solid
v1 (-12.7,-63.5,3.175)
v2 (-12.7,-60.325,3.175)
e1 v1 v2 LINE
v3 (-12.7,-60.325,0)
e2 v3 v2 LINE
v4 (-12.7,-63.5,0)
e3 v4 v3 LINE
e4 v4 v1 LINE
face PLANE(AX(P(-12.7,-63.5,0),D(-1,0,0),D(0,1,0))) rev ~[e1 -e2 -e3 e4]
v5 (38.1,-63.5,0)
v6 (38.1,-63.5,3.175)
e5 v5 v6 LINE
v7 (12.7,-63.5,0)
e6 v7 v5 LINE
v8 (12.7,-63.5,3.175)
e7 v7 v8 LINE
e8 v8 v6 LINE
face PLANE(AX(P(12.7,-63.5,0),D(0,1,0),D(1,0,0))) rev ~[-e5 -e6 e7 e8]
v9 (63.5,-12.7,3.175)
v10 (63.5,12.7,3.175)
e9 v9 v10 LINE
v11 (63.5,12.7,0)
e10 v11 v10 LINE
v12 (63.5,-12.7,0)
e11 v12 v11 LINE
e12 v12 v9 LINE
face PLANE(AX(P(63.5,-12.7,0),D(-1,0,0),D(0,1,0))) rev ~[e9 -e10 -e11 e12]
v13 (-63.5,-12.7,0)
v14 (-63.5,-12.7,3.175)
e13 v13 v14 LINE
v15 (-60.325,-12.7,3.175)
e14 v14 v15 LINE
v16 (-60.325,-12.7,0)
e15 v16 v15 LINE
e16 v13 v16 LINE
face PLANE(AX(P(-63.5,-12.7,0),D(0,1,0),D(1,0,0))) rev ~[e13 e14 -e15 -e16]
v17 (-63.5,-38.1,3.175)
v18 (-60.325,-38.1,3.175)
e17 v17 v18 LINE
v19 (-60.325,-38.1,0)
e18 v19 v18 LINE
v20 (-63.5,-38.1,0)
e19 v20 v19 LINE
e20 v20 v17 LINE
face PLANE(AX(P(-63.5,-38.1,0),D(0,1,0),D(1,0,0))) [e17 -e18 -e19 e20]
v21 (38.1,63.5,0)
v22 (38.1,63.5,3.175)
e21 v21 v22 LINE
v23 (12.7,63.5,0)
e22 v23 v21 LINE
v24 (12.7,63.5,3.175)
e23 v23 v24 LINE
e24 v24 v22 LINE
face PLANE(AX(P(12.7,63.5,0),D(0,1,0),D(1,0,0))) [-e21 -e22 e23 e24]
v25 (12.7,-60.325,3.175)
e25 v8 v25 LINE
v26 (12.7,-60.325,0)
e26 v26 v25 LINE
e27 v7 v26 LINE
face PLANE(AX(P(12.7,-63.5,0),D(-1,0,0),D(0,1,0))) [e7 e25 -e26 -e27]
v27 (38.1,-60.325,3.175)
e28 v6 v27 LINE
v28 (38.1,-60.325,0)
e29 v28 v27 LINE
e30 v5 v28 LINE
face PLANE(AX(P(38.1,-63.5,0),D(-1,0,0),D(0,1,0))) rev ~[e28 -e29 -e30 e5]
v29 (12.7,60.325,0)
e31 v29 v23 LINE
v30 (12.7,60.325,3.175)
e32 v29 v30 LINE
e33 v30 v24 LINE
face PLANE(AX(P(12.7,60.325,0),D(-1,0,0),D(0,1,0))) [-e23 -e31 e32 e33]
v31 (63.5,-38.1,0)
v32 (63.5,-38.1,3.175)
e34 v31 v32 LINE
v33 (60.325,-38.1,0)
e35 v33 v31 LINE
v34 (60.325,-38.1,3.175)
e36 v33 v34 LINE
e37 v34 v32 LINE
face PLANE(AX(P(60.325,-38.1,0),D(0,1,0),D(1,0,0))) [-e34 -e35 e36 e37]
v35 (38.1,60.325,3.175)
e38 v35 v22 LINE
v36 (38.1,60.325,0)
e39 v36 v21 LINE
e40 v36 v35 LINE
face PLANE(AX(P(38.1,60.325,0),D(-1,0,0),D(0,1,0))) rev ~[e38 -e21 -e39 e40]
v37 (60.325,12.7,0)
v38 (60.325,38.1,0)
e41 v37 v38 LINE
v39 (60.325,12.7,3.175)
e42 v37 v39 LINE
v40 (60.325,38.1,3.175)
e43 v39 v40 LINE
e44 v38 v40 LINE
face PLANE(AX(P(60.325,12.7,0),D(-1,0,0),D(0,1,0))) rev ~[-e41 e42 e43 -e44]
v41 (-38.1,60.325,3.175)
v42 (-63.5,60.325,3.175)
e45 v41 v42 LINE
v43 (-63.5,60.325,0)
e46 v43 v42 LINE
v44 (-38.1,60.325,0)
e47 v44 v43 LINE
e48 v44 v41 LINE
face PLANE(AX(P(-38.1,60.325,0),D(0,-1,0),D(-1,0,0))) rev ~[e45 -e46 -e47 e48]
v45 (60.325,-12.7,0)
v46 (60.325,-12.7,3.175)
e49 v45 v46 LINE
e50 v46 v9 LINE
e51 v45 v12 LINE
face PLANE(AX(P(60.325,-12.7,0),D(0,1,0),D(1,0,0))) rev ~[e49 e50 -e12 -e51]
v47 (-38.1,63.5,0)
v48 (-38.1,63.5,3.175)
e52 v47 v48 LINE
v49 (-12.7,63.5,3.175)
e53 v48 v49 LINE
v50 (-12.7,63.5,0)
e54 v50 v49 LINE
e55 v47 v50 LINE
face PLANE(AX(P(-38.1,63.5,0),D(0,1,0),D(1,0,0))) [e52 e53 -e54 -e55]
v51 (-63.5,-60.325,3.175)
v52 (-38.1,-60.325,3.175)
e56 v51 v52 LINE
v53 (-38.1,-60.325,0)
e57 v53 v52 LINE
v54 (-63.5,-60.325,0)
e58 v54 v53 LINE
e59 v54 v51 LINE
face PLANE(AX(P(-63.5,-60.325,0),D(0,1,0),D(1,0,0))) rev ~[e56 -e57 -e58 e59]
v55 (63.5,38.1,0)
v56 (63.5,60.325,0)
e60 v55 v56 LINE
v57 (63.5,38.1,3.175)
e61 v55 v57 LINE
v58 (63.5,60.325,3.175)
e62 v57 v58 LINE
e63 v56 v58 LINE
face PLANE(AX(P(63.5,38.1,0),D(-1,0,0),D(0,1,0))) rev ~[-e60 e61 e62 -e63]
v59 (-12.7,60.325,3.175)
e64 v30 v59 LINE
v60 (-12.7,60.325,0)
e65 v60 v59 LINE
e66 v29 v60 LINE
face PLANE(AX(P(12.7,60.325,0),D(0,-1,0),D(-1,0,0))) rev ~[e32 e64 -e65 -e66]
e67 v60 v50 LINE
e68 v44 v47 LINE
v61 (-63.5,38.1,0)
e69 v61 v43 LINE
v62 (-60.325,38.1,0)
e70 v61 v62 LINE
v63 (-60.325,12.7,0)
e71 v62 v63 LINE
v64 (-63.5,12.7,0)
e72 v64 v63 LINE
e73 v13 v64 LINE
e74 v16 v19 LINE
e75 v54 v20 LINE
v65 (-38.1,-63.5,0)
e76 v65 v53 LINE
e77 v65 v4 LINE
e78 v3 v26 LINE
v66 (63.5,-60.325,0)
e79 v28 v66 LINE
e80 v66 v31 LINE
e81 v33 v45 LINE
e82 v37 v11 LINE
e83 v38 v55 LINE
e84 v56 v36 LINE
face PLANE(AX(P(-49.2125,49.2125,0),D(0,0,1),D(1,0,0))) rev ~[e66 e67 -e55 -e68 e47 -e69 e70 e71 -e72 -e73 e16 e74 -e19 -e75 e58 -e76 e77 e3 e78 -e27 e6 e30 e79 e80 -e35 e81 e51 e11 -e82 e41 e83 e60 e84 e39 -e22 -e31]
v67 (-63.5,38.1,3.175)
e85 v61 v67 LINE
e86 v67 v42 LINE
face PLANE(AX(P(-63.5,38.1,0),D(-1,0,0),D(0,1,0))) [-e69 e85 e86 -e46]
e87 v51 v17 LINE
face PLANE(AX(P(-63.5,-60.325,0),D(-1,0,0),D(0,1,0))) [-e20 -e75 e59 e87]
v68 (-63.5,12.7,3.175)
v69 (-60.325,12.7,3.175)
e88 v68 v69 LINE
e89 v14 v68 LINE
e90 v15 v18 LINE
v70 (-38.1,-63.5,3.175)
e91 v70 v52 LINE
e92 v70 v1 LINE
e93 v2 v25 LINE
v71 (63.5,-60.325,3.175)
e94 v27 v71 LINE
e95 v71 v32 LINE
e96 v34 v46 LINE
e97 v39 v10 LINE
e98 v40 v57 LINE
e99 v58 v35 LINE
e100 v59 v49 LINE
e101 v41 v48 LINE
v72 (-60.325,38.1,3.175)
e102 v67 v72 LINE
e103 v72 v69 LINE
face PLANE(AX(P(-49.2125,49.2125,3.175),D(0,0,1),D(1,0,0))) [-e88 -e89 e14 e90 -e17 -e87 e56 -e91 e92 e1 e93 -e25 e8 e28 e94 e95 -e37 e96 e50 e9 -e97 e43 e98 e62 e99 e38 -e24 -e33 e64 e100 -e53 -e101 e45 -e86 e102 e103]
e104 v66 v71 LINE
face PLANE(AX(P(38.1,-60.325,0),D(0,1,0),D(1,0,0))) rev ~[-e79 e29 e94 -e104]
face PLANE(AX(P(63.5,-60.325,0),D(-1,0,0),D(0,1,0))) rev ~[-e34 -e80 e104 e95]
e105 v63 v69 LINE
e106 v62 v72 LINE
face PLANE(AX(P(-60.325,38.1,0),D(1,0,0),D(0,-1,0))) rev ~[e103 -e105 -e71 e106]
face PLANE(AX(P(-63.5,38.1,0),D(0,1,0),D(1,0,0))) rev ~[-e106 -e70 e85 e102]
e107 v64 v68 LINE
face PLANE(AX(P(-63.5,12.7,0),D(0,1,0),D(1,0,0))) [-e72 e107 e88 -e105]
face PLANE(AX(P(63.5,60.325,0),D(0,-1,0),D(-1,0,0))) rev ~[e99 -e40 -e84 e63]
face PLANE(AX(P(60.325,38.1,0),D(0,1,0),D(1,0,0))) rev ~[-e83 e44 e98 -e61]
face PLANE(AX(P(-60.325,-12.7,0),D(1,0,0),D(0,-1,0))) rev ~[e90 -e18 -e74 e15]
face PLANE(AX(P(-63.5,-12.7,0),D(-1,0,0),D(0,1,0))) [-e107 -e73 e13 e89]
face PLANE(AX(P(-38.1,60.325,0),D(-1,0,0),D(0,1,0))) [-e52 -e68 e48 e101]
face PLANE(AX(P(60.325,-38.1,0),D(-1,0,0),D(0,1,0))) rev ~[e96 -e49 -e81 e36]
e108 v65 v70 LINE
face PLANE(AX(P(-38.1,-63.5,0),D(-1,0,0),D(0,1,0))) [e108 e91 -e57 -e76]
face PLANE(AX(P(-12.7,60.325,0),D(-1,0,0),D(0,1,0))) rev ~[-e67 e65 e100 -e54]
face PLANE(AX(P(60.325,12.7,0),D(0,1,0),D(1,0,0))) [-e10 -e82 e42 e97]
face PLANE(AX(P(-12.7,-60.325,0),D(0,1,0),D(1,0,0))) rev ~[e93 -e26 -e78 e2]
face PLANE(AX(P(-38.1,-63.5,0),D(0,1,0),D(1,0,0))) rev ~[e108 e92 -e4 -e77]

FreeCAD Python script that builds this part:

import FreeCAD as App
import Part
import Sketcher
Q = App.Units.Quantity


def add_polygon(sketch, points):
    """Adds a closed chain of lines whose ends are joined by coincident constraints."""
    first, n = sketch.GeometryCount, len(points)
    for a, b in zip(points, points[1:] + points[:1]):
        sketch.addGeometry(Part.LineSegment(App.Vector(*a, 0), App.Vector(*b, 0)), False)
    for i in range(n):
        sketch.addConstraint(Sketcher.Constraint("Coincident", first + i, 2, first + (i + 1) % n, 1))

doc = App.newDocument("Part")
body = doc.addObject("PartDesign::Body", "Body")

# Sketch on XY plane
sketch1 = body.newObject("Sketcher::SketchObject", "Sketch")
sketch1.AttachmentSupport = (doc.getObject("XY_Plane"), [""])
sketch1.MapMode = "FlatFace"
add_polygon(sketch1, [(-60.3, 38.1), (-60.3, 12.7), (-63.5, 12.7), (-63.5, -12.7), (-60.3, -12.7), (-60.3, -38.1), (-63.5, -38.1), (-63.5, -60.3), (-38.1, -60.3), (-38.1, -63.5), (-12.7, -63.5), (-12.7, -60.3), (12.7, -60.3), (12.7, -63.5), (38.1, -63.5), (38.1, -60.3), (63.5, -60.3), (63.5, -38.1), (60.3, -38.1), (60.3, -12.7), (63.5, -12.7), (63.5, 12.7), (60.3, 12.7), (60.3, 38.1), (63.5, 38.1), (63.5, 60.3), (38.1, 60.3), (38.1, 63.5), (12.7, 63.5), (12.7, 60.3), (-12.7, 60.3), (-12.7, 63.5), (-38.1, 63.5), (-38.1, 60.3), (-63.5, 60.3), (-63.5, 38.1)])  # lines 0-35
sketch1.addConstraint([
    Sketcher.Constraint("Vertical", 0),
    Sketcher.Constraint("Horizontal", 1),
    Sketcher.Constraint("Vertical", 2),
    Sketcher.Constraint("Horizontal", 3),
    Sketcher.Constraint("Vertical", 4),
    Sketcher.Constraint("Horizontal", 5),
    Sketcher.Constraint("Vertical", 6),
    Sketcher.Constraint("Horizontal", 7),
    Sketcher.Constraint("Vertical", 8),
    Sketcher.Constraint("Horizontal", 9),
    Sketcher.Constraint("Vertical", 10),
    Sketcher.Constraint("Horizontal", 11),
    Sketcher.Constraint("Vertical", 12),
    Sketcher.Constraint("Horizontal", 13),
    Sketcher.Constraint("Vertical", 14),
    Sketcher.Constraint("Horizontal", 15),
    Sketcher.Constraint("Vertical", 16),
    Sketcher.Constraint("Horizontal", 17),
    Sketcher.Constraint("Vertical", 18),
    Sketcher.Constraint("Horizontal", 19),
    Sketcher.Constraint("Vertical", 20),
    Sketcher.Constraint("Horizontal", 21),
    Sketcher.Constraint("Vertical", 22),
    Sketcher.Constraint("Horizontal", 23),
    Sketcher.Constraint("Vertical", 24),
    Sketcher.Constraint("Horizontal", 25),
    Sketcher.Constraint("Vertical", 26),
    Sketcher.Constraint("Horizontal", 27),
    Sketcher.Constraint("Vertical", 28),
    Sketcher.Constraint("Horizontal", 29),
    Sketcher.Constraint("Vertical", 30),
    Sketcher.Constraint("Horizontal", 31),
    Sketcher.Constraint("Vertical", 32),
    Sketcher.Constraint("Horizontal", 33),
    Sketcher.Constraint("Vertical", 34),
    Sketcher.Constraint("Horizontal", 35),
    Sketcher.Constraint("Symmetric", 0, 2, 18, 2, -1, 1),
    Sketcher.Constraint("Symmetric", 2, 2, 20, 2, -1, 1),
    Sketcher.Constraint("Symmetric", 4, 2, 22, 2, -1, 1),
    Sketcher.Constraint("Symmetric", 6, 2, 24, 2, -1, 1),
    Sketcher.Constraint("Symmetric", 8, 2, 26, 2, -1, 1),
    Sketcher.Constraint("Symmetric", 10, 2, 28, 2, -1, 1),
    Sketcher.Constraint("Symmetric", 12, 2, 30, 2, -1, 1),
    Sketcher.Constraint("Symmetric", 14, 2, 32, 2, -1, 1),
    Sketcher.Constraint("Symmetric", 16, 2, 34, 2, -1, 1),
    Sketcher.Constraint("Symmetric", 9, 2, 12, 2, -2),
    Sketcher.Constraint("Symmetric", 7, 2, 14, 2, -2),
    Sketcher.Constraint("Symmetric", 5, 2, 16, 2, -2),
    Sketcher.Constraint("Symmetric", 3, 2, 18, 2, -2),
    Sketcher.Constraint("Horizontal", 7, 2, 10, 2),
    Sketcher.Constraint("Vertical", 2, 2, 5, 2),
    Sketcher.Constraint("Equal", 7, 9),
    Sketcher.Constraint("Equal", 9, 11),
    Sketcher.Constraint("Equal", 33, 0),
    Sketcher.Constraint("Equal", 0, 2),
    Sketcher.Constraint("Equal", 35, 8),
    Sketcher.Constraint("DistanceX", 7, 1, 7, 2, Q("1 in")),
    Sketcher.Constraint("DistanceY", 8, 2, 4, 2, Q("1 in")),
    Sketcher.Constraint("DistanceX", 1, 2, 1, 1, Q("0.125 in")),
])
pad1 = body.newObject("PartDesign::Pad", "Pad")
pad1.Profile = sketch1
pad1.Length = Q("0.125 in")

doc.recompute()
